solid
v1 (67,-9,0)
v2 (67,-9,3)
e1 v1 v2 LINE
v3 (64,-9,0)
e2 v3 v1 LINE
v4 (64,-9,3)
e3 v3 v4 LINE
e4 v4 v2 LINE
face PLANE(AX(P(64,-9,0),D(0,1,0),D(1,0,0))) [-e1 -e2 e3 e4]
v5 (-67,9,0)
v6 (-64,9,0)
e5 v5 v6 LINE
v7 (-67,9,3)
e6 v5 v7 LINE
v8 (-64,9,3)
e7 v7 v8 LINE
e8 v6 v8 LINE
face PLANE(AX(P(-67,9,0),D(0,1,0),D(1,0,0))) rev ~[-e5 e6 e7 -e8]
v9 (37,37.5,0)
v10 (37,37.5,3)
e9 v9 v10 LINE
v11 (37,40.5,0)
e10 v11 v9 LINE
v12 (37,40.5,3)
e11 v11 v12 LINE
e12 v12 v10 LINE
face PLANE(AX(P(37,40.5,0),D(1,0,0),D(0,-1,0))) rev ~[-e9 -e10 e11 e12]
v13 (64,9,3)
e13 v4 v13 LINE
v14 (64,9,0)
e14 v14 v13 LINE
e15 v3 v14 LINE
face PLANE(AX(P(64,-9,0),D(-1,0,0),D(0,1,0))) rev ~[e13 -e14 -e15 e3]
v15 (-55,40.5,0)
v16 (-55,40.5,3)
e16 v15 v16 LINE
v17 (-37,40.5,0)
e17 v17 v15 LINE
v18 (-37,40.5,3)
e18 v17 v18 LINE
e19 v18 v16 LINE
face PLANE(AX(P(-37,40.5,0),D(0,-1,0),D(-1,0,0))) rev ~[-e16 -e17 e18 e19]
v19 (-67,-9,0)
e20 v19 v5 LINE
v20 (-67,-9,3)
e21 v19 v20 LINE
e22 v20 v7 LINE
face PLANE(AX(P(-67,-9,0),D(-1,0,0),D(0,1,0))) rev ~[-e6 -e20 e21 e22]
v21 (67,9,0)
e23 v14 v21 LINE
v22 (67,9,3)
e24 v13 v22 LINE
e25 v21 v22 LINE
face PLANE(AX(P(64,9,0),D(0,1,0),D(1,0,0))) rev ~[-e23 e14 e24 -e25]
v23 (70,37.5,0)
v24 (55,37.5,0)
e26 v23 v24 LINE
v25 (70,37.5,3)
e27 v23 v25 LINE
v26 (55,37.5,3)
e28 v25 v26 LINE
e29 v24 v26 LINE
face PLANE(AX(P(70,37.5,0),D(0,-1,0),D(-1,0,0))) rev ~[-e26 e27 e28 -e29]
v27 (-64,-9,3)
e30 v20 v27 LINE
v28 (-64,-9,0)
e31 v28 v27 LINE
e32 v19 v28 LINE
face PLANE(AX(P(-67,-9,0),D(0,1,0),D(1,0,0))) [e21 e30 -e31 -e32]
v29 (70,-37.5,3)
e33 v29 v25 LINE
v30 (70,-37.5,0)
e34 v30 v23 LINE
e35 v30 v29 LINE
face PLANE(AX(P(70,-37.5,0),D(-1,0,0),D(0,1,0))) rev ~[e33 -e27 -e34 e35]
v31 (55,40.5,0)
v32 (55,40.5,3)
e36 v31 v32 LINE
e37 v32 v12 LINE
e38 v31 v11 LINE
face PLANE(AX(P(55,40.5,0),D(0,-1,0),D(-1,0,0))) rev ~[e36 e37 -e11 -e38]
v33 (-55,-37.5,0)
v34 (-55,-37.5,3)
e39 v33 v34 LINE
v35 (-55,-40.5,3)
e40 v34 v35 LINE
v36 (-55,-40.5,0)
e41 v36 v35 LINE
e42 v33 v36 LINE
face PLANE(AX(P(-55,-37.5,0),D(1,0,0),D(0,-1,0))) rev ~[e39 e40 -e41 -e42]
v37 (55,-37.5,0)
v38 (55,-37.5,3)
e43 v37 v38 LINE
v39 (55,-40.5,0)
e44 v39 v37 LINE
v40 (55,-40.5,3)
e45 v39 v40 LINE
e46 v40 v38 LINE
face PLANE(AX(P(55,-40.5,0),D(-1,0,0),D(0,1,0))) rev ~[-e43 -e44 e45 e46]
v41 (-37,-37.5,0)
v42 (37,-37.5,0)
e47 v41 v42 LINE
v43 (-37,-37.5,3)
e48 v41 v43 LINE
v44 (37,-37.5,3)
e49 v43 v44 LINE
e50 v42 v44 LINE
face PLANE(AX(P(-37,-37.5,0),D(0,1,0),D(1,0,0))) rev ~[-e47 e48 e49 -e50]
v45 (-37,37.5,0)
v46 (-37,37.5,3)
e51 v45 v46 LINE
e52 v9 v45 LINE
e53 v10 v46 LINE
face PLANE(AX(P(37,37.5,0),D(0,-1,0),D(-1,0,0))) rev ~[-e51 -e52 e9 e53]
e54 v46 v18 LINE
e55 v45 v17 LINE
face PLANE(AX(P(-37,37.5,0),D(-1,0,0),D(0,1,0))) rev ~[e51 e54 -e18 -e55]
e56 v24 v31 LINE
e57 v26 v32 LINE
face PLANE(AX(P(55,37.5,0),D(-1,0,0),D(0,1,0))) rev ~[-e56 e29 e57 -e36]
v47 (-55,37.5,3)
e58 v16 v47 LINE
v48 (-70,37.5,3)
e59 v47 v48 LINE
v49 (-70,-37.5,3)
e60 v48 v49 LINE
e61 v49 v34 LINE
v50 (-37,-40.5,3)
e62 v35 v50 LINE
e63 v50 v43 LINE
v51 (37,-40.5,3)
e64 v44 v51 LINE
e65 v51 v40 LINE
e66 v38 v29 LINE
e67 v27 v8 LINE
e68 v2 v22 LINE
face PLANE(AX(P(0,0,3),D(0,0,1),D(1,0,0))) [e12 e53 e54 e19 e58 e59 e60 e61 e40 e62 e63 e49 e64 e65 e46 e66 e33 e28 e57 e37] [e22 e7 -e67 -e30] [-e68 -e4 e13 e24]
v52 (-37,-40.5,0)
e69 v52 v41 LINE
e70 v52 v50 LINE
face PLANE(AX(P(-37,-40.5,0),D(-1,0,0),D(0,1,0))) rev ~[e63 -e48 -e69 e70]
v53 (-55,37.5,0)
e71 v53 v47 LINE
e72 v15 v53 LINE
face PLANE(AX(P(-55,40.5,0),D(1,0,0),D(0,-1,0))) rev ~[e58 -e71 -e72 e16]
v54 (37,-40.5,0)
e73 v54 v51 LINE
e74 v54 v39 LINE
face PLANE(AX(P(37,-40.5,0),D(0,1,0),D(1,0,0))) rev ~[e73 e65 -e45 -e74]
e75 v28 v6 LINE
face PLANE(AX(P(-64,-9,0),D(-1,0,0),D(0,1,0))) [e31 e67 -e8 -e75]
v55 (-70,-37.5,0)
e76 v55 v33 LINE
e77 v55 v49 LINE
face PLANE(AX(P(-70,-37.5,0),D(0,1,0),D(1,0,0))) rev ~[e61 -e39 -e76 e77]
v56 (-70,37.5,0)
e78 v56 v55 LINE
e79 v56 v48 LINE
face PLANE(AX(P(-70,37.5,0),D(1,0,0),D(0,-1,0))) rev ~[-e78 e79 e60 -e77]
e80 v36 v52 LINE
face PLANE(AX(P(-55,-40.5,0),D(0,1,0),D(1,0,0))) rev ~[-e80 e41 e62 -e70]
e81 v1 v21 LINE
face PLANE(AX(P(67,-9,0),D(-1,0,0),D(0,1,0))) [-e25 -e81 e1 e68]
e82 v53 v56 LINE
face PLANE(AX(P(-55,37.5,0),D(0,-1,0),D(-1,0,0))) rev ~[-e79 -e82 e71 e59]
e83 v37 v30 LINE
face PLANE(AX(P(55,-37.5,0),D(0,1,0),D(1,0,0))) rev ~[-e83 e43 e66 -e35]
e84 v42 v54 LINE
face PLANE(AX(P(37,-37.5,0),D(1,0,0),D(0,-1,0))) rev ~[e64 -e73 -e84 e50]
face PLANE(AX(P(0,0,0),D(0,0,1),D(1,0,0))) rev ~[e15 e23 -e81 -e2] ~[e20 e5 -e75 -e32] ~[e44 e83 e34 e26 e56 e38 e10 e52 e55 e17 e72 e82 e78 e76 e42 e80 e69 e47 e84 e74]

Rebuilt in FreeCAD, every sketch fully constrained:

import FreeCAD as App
import Part
import Sketcher


def add_polygon(sketch, points):
    """Adds a closed chain of lines whose ends are joined by coincident constraints."""
    first, n = sketch.GeometryCount, len(points)
    for a, b in zip(points, points[1:] + points[:1]):
        sketch.addGeometry(Part.LineSegment(App.Vector(*a, 0), App.Vector(*b, 0)), False)
    for i in range(n):
        sketch.addConstraint(Sketcher.Constraint("Coincident", first + i, 2, first + (i + 1) % n, 1))

doc = App.newDocument("Part")
body = doc.addObject("PartDesign::Body", "Body")

sketch1 = body.newObject("Sketcher::SketchObject", "Sketch")
sketch1.AttachmentSupport = (doc.getObject("XY_Plane"), [""])
sketch1.MapMode = "FlatFace"
add_polygon(sketch1, [(70, -37.5), (70, 37.5), (55, 37.5), (55, 40.5), (37, 40.5), (37, 37.5), (-37, 37.5), (-37, 40.5), (-55, 40.5), (-55, 37.5), (-70, 37.5), (-70, -37.5), (-55, -37.5), (-55, -40.5), (-37, -40.5), (-37, -37.5), (37, -37.5), (37, -40.5), (55, -40.5), (55, -37.5)])
add_polygon(sketch1, [(-64, -9), (-67, -9), (-67, 9), (-64, 9)])
add_polygon(sketch1, [(67, -9), (64, -9), (64, 9), (67, 9)])
sketch1.addConstraint([
    Sketcher.Constraint("Vertical", 0),
    Sketcher.Constraint("Horizontal", 1),
    Sketcher.Constraint("Vertical", 2),
    Sketcher.Constraint("Horizontal", 3),
    Sketcher.Constraint("Vertical", 4),
    Sketcher.Constraint("Horizontal", 5),
    Sketcher.Constraint("Vertical", 6),
    Sketcher.Constraint("Horizontal", 7),
    Sketcher.Constraint("Vertical", 8),
    Sketcher.Constraint("Horizontal", 9),
    Sketcher.Constraint("Vertical", 10),
    Sketcher.Constraint("Horizontal", 11),
    Sketcher.Constraint("Vertical", 12),
    Sketcher.Constraint("Horizontal", 13),
    Sketcher.Constraint("Vertical", 14),
    Sketcher.Constraint("Horizontal", 15),
    Sketcher.Constraint("Vertical", 16),
    Sketcher.Constraint("Horizontal", 17),
    Sketcher.Constraint("Vertical", 18),
    Sketcher.Constraint("Horizontal", 19),
    Sketcher.Constraint("Horizontal", 20),
    Sketcher.Constraint("Vertical", 21),
    Sketcher.Constraint("Horizontal", 22),
    Sketcher.Constraint("Vertical", 23),
    Sketcher.Constraint("Horizontal", 24),
    Sketcher.Constraint("Vertical", 25),
    Sketcher.Constraint("Horizontal", 26),
    Sketcher.Constraint("Vertical", 27),
    Sketcher.Constraint("Symmetric", 0, 2, 10, 2, -1, 1),
    Sketcher.Constraint("Symmetric", 2, 2, 12, 2, -1, 1),
    Sketcher.Constraint("Symmetric", 4, 2, 14, 2, -1, 1),
    Sketcher.Constraint("Symmetric", 6, 2, 16, 2, -1, 1),
    Sketcher.Constraint("Symmetric", 8, 2, 18, 2, -1, 1),
    Sketcher.Constraint("Symmetric", 22, 2, 24, 2, -1, 1),
    Sketcher.Constraint("Symmetric", 20, 2, 26, 2, -1, 1),
    Sketcher.Constraint("Symmetric", 3, 2, 6, 2, -2),
    Sketcher.Constraint("Symmetric", 1, 2, 8, 2, -2),
    Sketcher.Constraint("Horizontal", 1, 2, 4, 2),
    Sketcher.Constraint("Horizontal", 23, 2, 24, 2),
    Sketcher.Constraint("Equal", 26, 2),
    Sketcher.Constraint("Equal", 17, 21),
    Sketcher.Constraint("DistanceX", 1, 2, 1, 1, 15.0),
    Sketcher.Constraint("DistanceX", 3, 2, 3, 1, 18.0),
    Sketcher.Constraint("DistanceX", 5, 2, 5, 1, 74.0),
    Sketcher.Constraint("DistanceX", 20, 2, 20, 1, 3.0),
    Sketcher.Constraint("DistanceY", 0, 1, 0, 2, 75.0),
    Sketcher.Constraint("DistanceX", 20, 2, -1, 1, 67.0),
])
pad1 = body.newObject("PartDesign::Pad", "Pad")
pad1.Profile = sketch1
pad1.Length = 3

doc.recompute()
